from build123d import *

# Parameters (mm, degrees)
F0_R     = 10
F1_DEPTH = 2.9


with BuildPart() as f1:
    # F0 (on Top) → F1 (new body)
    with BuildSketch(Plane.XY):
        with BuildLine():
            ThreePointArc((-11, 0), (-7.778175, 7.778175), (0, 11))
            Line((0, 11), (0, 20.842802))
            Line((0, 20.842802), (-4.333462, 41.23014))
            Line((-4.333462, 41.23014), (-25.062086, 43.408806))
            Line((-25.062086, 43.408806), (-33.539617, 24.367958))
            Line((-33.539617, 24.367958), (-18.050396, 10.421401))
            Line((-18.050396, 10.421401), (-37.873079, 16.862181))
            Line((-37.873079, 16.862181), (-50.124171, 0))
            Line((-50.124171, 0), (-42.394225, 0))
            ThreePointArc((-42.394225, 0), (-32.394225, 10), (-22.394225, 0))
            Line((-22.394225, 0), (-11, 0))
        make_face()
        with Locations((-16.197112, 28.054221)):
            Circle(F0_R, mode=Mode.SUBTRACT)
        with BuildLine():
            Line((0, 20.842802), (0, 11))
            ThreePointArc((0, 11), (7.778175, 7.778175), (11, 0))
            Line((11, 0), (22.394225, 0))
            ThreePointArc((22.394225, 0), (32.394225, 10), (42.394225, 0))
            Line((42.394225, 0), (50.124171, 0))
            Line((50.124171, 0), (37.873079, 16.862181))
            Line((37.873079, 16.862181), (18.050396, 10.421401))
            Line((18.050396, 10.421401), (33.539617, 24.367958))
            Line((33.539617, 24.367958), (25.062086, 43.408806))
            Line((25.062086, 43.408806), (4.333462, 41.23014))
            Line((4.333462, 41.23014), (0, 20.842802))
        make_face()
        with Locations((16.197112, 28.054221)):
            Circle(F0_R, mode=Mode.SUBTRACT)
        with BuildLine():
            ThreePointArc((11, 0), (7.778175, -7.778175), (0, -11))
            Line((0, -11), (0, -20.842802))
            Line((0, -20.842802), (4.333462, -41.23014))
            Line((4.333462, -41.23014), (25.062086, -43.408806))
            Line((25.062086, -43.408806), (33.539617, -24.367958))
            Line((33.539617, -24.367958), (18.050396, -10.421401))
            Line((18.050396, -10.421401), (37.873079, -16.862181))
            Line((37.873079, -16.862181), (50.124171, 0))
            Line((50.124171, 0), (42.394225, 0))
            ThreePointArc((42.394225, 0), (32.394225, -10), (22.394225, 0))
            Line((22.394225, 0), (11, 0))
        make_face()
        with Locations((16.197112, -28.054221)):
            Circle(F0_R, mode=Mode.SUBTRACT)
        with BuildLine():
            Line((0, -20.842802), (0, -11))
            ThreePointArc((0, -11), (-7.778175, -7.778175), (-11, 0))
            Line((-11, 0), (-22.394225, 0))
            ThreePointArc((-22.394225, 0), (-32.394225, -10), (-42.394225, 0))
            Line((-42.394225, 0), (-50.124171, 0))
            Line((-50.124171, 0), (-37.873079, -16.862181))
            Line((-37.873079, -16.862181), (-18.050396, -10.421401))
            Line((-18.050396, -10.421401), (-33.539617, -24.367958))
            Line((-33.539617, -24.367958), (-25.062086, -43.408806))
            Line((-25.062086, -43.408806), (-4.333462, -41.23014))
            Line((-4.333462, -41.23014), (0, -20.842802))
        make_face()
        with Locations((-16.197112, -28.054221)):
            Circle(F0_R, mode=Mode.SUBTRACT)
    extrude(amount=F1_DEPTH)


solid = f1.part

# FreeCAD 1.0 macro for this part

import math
import FreeCAD as App
import Part
import Sketcher
Q = App.Units.Quantity

doc = App.newDocument("Part")
body = doc.addObject("PartDesign::Body", "Body")

# Sketch on XY plane
sketch1 = doc.addObject("Sketcher::SketchObject", "Sketch")
body.addObject(sketch1)
sketch1.AttachmentSupport = (doc.XY_Plane, [""])
sketch1.MapMode = "FlatFace"
sketch1.addGeometry([
    Part.LineSegment(App.Vector(-37.873079, 16.862181, 0), App.Vector(-50.124171, 0, 0)),  # 0
    Part.LineSegment(App.Vector(-50.124171, 0, 0), App.Vector(-37.873079, -16.862181, 0)),  # 1
    Part.LineSegment(App.Vector(-37.873079, -16.862181, 0), App.Vector(-18.050396, -10.421401, 0)),  # 2
    Part.LineSegment(App.Vector(-18.050396, -10.421401, 0), App.Vector(-33.539617, -24.367958, 0)),  # 3
    Part.LineSegment(App.Vector(-33.539617, -24.367958, 0), App.Vector(-25.062086, -43.408806, 0)),  # 4
    Part.LineSegment(App.Vector(-25.062086, -43.408806, 0), App.Vector(-4.333462, -41.23014, 0)),  # 5
    Part.LineSegment(App.Vector(-4.333462, -41.23014, 0), App.Vector(0, -20.842802, 0)),  # 6
    Part.LineSegment(App.Vector(0, -20.842802, 0), App.Vector(4.333462, -41.23014, 0)),  # 7
    Part.LineSegment(App.Vector(4.333462, -41.23014, 0), App.Vector(25.062086, -43.408806, 0)),  # 8
    Part.LineSegment(App.Vector(25.062086, -43.408806, 0), App.Vector(33.539617, -24.367958, 0)),  # 9
    Part.LineSegment(App.Vector(33.539617, -24.367958, 0), App.Vector(18.050396, -10.421401, 0)),  # 10
    Part.LineSegment(App.Vector(18.050396, -10.421401, 0), App.Vector(37.873079, -16.862181, 0)),  # 11
    Part.LineSegment(App.Vector(37.873079, -16.862181, 0), App.Vector(50.124171, 0, 0)),  # 12
    Part.LineSegment(App.Vector(50.124171, 0, 0), App.Vector(37.873079, 16.862181, 0)),  # 13
    Part.LineSegment(App.Vector(37.873079, 16.862181, 0), App.Vector(18.050396, 10.421401, 0)),  # 14
    Part.LineSegment(App.Vector(18.050396, 10.421401, 0), App.Vector(33.539617, 24.367958, 0)),  # 15
    Part.LineSegment(App.Vector(33.539617, 24.367958, 0), App.Vector(25.062086, 43.408806, 0)),  # 16
    Part.LineSegment(App.Vector(25.062086, 43.408806, 0), App.Vector(4.333462, 41.23014, 0)),  # 17
    Part.LineSegment(App.Vector(4.333462, 41.23014, 0), App.Vector(0, 20.842802, 0)),  # 18
    Part.LineSegment(App.Vector(0, 20.842802, 0), App.Vector(-4.333462, 41.23014, 0)),  # 19
    Part.LineSegment(App.Vector(-4.333462, 41.23014, 0), App.Vector(-25.062086, 43.408806, 0)),  # 20
    Part.LineSegment(App.Vector(-25.062086, 43.408806, 0), App.Vector(-33.539617, 24.367958, 0)),  # 21
    Part.LineSegment(App.Vector(-33.539617, 24.367958, 0), App.Vector(-18.050396, 10.421401, 0)),  # 22
    Part.LineSegment(App.Vector(-18.050396, 10.421401, 0), App.Vector(-37.873079, 16.862181, 0)),  # 23
    Part.Circle(App.Vector(-16.197112, -28.054221, 0), App.Vector(0, 0, 1), 10),  # 24
    Part.Circle(App.Vector(16.197112, -28.054221, 0), App.Vector(0, 0, 1), 10),  # 25
    Part.Circle(App.Vector(-32.394225, 0, 0), App.Vector(0, 0, 1), 10),  # 26
    Part.Circle(App.Vector(-16.197112, 28.054221, 0), App.Vector(0, 0, 1), 10),  # 27
    Part.ArcOfCircle(Part.Circle(App.Vector(-0.000001, 0.000001, 0), App.Vector(0, 0, 1), 10.999999), math.radians(89.999993), math.radians(180.000007)),  # 28
    Part.ArcOfCircle(Part.Circle(App.Vector(0.000001, 0.000001, 0), App.Vector(0, 0, 1), 10.999999), math.radians(-0.000007), math.radians(90.000007)),  # 29
    Part.ArcOfCircle(Part.Circle(App.Vector(0.000001, -0.000001, 0), App.Vector(0, 0, 1), 10.999999), math.radians(-90.000007), math.radians(0.000007)),  # 30
    Part.ArcOfCircle(Part.Circle(App.Vector(-0.000001, -0.000001, 0), App.Vector(0, 0, 1), 10.999999), math.radians(179.999993), math.radians(270.000007)),  # 31
    Part.Circle(App.Vector(32.394225, 0, 0), App.Vector(0, 0, 1), 10),  # 32
    Part.Circle(App.Vector(16.197112, 28.054221, 0), App.Vector(0, 0, 1), 10),  # 33
], False)
sketch1.addConstraint([
    Sketcher.Constraint("Coincident", 0, 2, 1, 1),
    Sketcher.Constraint("Coincident", 1, 2, 2, 1),
    Sketcher.Constraint("Coincident", 2, 2, 3, 1),
    Sketcher.Constraint("Coincident", 3, 2, 4, 1),
    Sketcher.Constraint("Coincident", 4, 2, 5, 1),
    Sketcher.Constraint("Coincident", 5, 2, 6, 1),
    Sketcher.Constraint("Coincident", 6, 2, 7, 1),
    Sketcher.Constraint("Coincident", 7, 2, 8, 1),
    Sketcher.Constraint("Coincident", 8, 2, 9, 1),
    Sketcher.Constraint("Coincident", 9, 2, 10, 1),
    Sketcher.Constraint("Coincident", 10, 2, 11, 1),
    Sketcher.Constraint("Coincident", 11, 2, 12, 1),
    Sketcher.Constraint("Coincident", 12, 2, 13, 1),
    Sketcher.Constraint("Coincident", 13, 2, 14, 1),
    Sketcher.Constraint("Coincident", 14, 2, 15, 1),
    Sketcher.Constraint("Coincident", 15, 2, 16, 1),
    Sketcher.Constraint("Coincident", 16, 2, 17, 1),
    Sketcher.Constraint("Coincident", 17, 2, 18, 1),
    Sketcher.Constraint("Coincident", 18, 2, 19, 1),
    Sketcher.Constraint("Coincident", 19, 2, 20, 1),
    Sketcher.Constraint("Coincident", 20, 2, 21, 1),
    Sketcher.Constraint("Coincident", 21, 2, 22, 1),
    Sketcher.Constraint("Coincident", 22, 2, 23, 1),
    Sketcher.Constraint("Coincident", 23, 2, 0, 1),
    Sketcher.Constraint("Tangent", 28, 1, 29, 2),
    Sketcher.Constraint("Tangent", 29, 1, 30, 2),
    Sketcher.Constraint("Tangent", 30, 1, 31, 2),
    Sketcher.Constraint("Tangent", 31, 1, 28, 2),
    Sketcher.Constraint("Coincident", 28, 3, -1, 1),
    Sketcher.Constraint("Equal", 24, 25),
    Sketcher.Constraint("Equal", 25, 26),
    Sketcher.Constraint("Equal", 26, 27),
    Sketcher.Constraint("Equal", 28, 29),
    Sketcher.Constraint("Equal", 27, 32),
    Sketcher.Constraint("Equal", 32, 33),
    Sketcher.Constraint("Symmetric", 25, 3, 27, 3, -1, 1),
    Sketcher.Constraint("Symmetric", 26, 3, 32, 3, -1, 1),
    Sketcher.Constraint("Symmetric", 24, 3, 33, 3, -1, 1),
    Sketcher.Constraint("Symmetric", 0, 2, 12, 2, -1, 1),
    Sketcher.Constraint("Symmetric", 1, 2, 13, 2, -1, 1),
    Sketcher.Constraint("Symmetric", 2, 2, 14, 2, -1, 1),
    Sketcher.Constraint("Symmetric", 3, 2, 15, 2, -1, 1),
    Sketcher.Constraint("Symmetric", 4, 2, 16, 2, -1, 1),
    Sketcher.Constraint("Symmetric", 5, 2, 17, 2, -1, 1),
    Sketcher.Constraint("Symmetric", 6, 2, 18, 2, -1, 1),
    Sketcher.Constraint("Symmetric", 7, 2, 19, 2, -1, 1),
    Sketcher.Constraint("Symmetric", 8, 2, 20, 2, -1, 1),
    Sketcher.Constraint("Symmetric", 9, 2, 21, 2, -1, 1),
    Sketcher.Constraint("Symmetric", 10, 2, 22, 2, -1, 1),
    Sketcher.Constraint("Symmetric", 11, 2, 23, 2, -1, 1),
    Sketcher.Constraint("Symmetric", 24, 3, 25, 3, -2),
    Sketcher.Constraint("Symmetric", 5, 2, 7, 2, -2),
    Sketcher.Constraint("Symmetric", 4, 2, 8, 2, -2),
    Sketcher.Constraint("Symmetric", 3, 2, 9, 2, -2),
    Sketcher.Constraint("Symmetric", 2, 2, 10, 2, -2),
    Sketcher.Constraint("Symmetric", 1, 2, 11, 2, -2),
    Sketcher.Constraint("PointOnObject", 26, 3, -1),
    Sketcher.Constraint("PointOnObject", 0, 2, -1),
    Sketcher.Constraint("PointOnObject", 6, 2, -2),
    Sketcher.Constraint("PointOnObject", 28, 1, -2),
    Sketcher.Constraint("PointOnObject", 29, 1, -1),
    Sketcher.Constraint("PointOnObject", 30, 1, -2),
    Sketcher.Constraint("PointOnObject", 31, 1, -1),
    Sketcher.Constraint("Equal", 1, 2),
    Sketcher.Constraint("Equal", 2, 3),
    Sketcher.Constraint("Equal", 3, 4),
    Sketcher.Constraint("Equal", 4, 5),
    Sketcher.Constraint("Equal", 5, 6),
    Sketcher.Constraint("Diameter", 24, Q("20 mm")),
    Sketcher.Constraint("Radius", 28, Q("10.999999 mm")),
    Sketcher.Constraint("Angle", 0, Q("-126.000001 deg")),
    Sketcher.Constraint("Angle", 2, Q("18 deg")),
    Sketcher.Constraint("Angle", 3, Q("-138 deg")),
    Sketcher.Constraint("Angle", 4, Q("-66.000002 deg")),
    Sketcher.Constraint("Angle", 5, Q("6 deg")),
    Sketcher.Constraint("Angle", 6, Q("78.000001 deg")),
    Sketcher.Constraint("DistanceY", 2, 2, -1, 1, Q("10.421401 mm")),
    Sketcher.Constraint("DistanceY", 24, 3, -1, 1, Q("28.054221 mm")),
    Sketcher.Constraint("DistanceX", 27, 3, 28, 3, Q("16.197111 mm")),
    Sketcher.Constraint("DistanceX", 26, 3, 2, 2, Q("14.343829 mm")),
])
pad1 = doc.addObject("PartDesign::Pad", "Pad")
body.addObject(pad1)
pad1.Profile = sketch1
pad1.Length = 2.9

doc.recompute()
